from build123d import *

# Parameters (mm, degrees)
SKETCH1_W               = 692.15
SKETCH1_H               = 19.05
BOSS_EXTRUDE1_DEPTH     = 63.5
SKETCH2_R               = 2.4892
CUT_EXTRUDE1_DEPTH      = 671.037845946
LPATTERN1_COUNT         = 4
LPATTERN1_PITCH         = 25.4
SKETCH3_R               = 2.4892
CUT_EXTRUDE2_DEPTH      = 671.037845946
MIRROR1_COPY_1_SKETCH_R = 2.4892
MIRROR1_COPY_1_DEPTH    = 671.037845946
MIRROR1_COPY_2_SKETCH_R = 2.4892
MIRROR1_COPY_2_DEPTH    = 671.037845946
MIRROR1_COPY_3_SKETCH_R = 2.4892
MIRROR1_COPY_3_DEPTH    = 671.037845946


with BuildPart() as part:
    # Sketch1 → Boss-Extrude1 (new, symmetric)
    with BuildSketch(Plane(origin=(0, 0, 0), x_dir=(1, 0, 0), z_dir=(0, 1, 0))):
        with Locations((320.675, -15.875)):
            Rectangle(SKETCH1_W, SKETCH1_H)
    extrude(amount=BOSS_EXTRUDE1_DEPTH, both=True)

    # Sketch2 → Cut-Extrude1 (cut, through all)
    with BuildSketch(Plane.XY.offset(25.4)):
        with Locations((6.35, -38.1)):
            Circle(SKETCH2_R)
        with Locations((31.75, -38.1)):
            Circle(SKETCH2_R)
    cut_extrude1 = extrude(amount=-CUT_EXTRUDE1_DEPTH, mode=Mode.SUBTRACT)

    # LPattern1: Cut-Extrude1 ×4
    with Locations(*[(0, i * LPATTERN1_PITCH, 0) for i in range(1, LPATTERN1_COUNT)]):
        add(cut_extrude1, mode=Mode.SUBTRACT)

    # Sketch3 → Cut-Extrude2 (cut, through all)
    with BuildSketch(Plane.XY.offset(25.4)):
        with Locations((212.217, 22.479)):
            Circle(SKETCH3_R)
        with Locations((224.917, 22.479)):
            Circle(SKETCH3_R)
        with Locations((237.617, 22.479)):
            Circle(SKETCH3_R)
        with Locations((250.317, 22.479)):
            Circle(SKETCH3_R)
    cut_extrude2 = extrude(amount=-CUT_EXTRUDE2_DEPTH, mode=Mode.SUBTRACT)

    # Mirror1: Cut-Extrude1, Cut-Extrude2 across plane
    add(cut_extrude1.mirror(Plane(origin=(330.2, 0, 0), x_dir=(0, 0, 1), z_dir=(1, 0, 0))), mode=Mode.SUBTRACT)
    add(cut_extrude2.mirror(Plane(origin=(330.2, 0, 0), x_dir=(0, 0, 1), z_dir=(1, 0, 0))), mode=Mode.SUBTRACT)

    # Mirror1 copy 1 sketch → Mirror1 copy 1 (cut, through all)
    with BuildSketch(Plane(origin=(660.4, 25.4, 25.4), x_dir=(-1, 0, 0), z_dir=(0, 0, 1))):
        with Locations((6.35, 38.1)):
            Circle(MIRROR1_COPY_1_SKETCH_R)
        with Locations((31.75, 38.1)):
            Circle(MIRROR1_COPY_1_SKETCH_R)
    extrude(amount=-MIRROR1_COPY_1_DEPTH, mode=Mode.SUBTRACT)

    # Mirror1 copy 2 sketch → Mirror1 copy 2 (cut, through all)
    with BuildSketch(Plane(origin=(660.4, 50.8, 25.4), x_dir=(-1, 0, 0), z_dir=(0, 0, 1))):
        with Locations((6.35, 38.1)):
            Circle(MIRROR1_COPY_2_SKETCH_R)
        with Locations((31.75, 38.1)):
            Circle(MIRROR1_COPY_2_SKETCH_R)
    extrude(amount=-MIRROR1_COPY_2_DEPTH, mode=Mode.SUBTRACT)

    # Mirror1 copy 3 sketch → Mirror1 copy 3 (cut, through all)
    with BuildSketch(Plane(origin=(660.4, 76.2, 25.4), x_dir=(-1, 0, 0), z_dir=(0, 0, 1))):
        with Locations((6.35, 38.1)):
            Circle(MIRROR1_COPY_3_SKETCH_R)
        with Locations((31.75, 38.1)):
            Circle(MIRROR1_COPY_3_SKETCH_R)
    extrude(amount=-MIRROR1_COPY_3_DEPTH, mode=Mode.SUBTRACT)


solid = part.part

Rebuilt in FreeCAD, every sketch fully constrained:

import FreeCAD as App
import Part
import Sketcher

V = App.Vector
Q = App.Units.Quantity

doc = App.newDocument("Part")
body = doc.addObject("PartDesign::Body", "Body")

sketch1 = doc.addObject("Sketcher::SketchObject", "Sketch")
body.addObject(sketch1)
sketch1.AttachmentSupport = (doc.XZ_Plane, [""])
sketch1.MapMode = "FlatFace"
sketch1.addGeometry(Part.LineSegment(V(-25, 6, 0), V(-25, 25, 0)), False)
sketch1.addGeometry(Part.LineSegment(V(-25, 25, 0), V(667, 25, 0)), False)
sketch1.addGeometry(Part.LineSegment(V(667, 25, 0), V(667, 6, 0)), False)
sketch1.addGeometry(Part.LineSegment(V(667, 6, 0), V(-25, 6, 0)), False)
sketch1.addConstraint(Sketcher.Constraint("Coincident", 0, 2, 1, 1))
sketch1.addConstraint(Sketcher.Constraint("Coincident", 1, 2, 2, 1))
sketch1.addConstraint(Sketcher.Constraint("Coincident", 2, 2, 3, 1))
sketch1.addConstraint(Sketcher.Constraint("Coincident", 3, 2, 0, 1))
sketch1.addConstraint(Sketcher.Constraint("Vertical", 0))
sketch1.addConstraint(Sketcher.Constraint("Horizontal", 1))
sketch1.addConstraint(Sketcher.Constraint("Vertical", 2))
sketch1.addConstraint(Sketcher.Constraint("Horizontal", 3))
sketch1.addConstraint(Sketcher.Constraint("DistanceX", 0, 2, -1, 1, Q("1 in")))
sketch1.addConstraint(Sketcher.Constraint("DistanceY", -1, 1, 0, 2, Q("1 in")))
sketch1.addConstraint(Sketcher.Constraint("DistanceX", 1, 1, 1, 2, Q("27.25 in")))
sketch1.addConstraint(Sketcher.Constraint("DistanceY", 0, 1, 0, 2, Q("0.75 in")))
pad1 = doc.addObject("PartDesign::Pad", "Pad")
body.addObject(pad1)
pad1.Profile = sketch1
pad1.Length = Q("5 in")
pad1.Midplane = True

sketch2 = doc.addObject("Sketcher::SketchObject", "Sketch001")
body.addObject(sketch2)
sketch2.AttachmentSupport = (doc.XY_Plane, [""])
sketch2.MapMode = "FlatFace"
sketch2.AttachmentOffset = App.Placement(V(0, 0, 1 * 25.4), App.Rotation())
sketch2.addGeometry(Part.Circle(V(6.3, -38.1, 0), V(0, 0, 1), 2.5), False)
sketch2.addGeometry(Part.Circle(V(31.8, -38.1, 0), V(0, 0, 1), 2.5), False)
sketch2.addConstraint(Sketcher.Constraint("Equal", 0, 1))
sketch2.addConstraint(Sketcher.Constraint("Horizontal", 0, 3, 1, 3))
sketch2.addConstraint(Sketcher.Constraint("Diameter", 0, Q("0.196 in")))
sketch2.addConstraint(Sketcher.Constraint("DistanceX", 0, 3, 1, 3, Q("1 in")))
sketch2.addConstraint(Sketcher.Constraint("DistanceY", 0, 3, -1, 1, Q("1.5 in")))
sketch2.addConstraint(Sketcher.Constraint("DistanceX", -1, 1, 0, 3, Q("0.25 in")))
pocket1 = doc.addObject("PartDesign::Pocket", "Pocket")
body.addObject(pocket1)
pocket1.Profile = sketch2
pocket1.Type = "ThroughAll"
doc.recompute()

linearpattern = doc.addObject("PartDesign::LinearPattern", "LinearPattern")
body.addObject(linearpattern)
linearpattern.Originals = [pocket1]
linearpattern.Direction = (doc.Y_Axis, [""])
linearpattern.Mode = "offset"
linearpattern.Offset = Q("1 in")
linearpattern.Occurrences = 4
body.Tip = linearpattern

sketch3 = doc.addObject("Sketcher::SketchObject", "Sketch002")
body.addObject(sketch3)
sketch3.AttachmentSupport = (doc.XY_Plane, [""])
sketch3.MapMode = "FlatFace"
sketch3.AttachmentOffset = App.Placement(V(0, 0, 1 * 25.4), App.Rotation())
sketch3.addGeometry(Part.Circle(V(212.2, 22.5, 0), V(0, 0, 1), 2.5), False)
sketch3.addGeometry(Part.Circle(V(224.9, 22.5, 0), V(0, 0, 1), 2.5), False)
sketch3.addGeometry(Part.Circle(V(237.6, 22.5, 0), V(0, 0, 1), 2.5), False)
sketch3.addGeometry(Part.Circle(V(250.3, 22.5, 0), V(0, 0, 1), 2.5), False)
sketch3.addConstraint(Sketcher.Constraint("Equal", 0, 1))
sketch3.addConstraint(Sketcher.Constraint("Equal", 1, 2))
sketch3.addConstraint(Sketcher.Constraint("Equal", 2, 3))
sketch3.addConstraint(Sketcher.Constraint("Horizontal", 0, 3, 1, 3))
sketch3.addConstraint(Sketcher.Constraint("Horizontal", 1, 3, 2, 3))
sketch3.addConstraint(Sketcher.Constraint("Horizontal", 2, 3, 3, 3))
sketch3.addConstraint(Sketcher.Constraint("Diameter", 0, Q("0.196 in")))
sketch3.addConstraint(Sketcher.Constraint("DistanceX", 0, 3, 2, 3, Q("1 in")))
sketch3.addConstraint(Sketcher.Constraint("DistanceX", 1, 3, 3, 3, Q("1 in")))
sketch3.addConstraint(Sketcher.Constraint("DistanceX", 0, 3, 1, 3, Q("0.5 in")))
sketch3.addConstraint(Sketcher.Constraint("DistanceX", -1, 1, 0, 3, Q("8.355 in")))
sketch3.addConstraint(Sketcher.Constraint("DistanceY", -1, 1, 0, 3, Q("0.885 in")))
pocket2 = doc.addObject("PartDesign::Pocket", "Pocket001")
body.addObject(pocket2)
pocket2.Profile = sketch3
pocket2.Type = "ThroughAll"
doc.recompute()

datumplane = doc.addObject("PartDesign::Plane", "DatumPlane")
body.addObject(datumplane)
datumplane.AttachmentSupport = (doc.YZ_Plane, [""])
datumplane.MapMode = "FlatFace"
datumplane.AttachmentOffset = App.Placement(V(0, 0, 13 * 25.4), App.Rotation())
mirrored = doc.addObject("PartDesign::Mirrored", "Mirrored")
body.addObject(mirrored)
mirrored.Originals = [pocket1, pocket2]
mirrored.MirrorPlane = (datumplane, [""])
body.Tip = mirrored

sketch4 = doc.addObject("Sketcher::SketchObject", "Sketch003")
body.addObject(sketch4)
sketch4.AttachmentSupport = (doc.XY_Plane, [""])
sketch4.MapMode = "FlatFace"
sketch4.AttachmentOffset = App.Placement(V(0, 0, 1 * 25.4), App.Rotation())
sketch4.addGeometry(Part.Circle(V(654, -12.7, 0), V(0, 0, 1), 2.5), False)
sketch4.addGeometry(Part.Circle(V(628.6, -12.7, 0), V(0, 0, 1), 2.5), False)
sketch4.addConstraint(Sketcher.Constraint("Equal", 0, 1))
sketch4.addConstraint(Sketcher.Constraint("Horizontal", 0, 3, 1, 3))
sketch4.addConstraint(Sketcher.Constraint("Diameter", 0, Q("0.196 in")))
sketch4.addConstraint(Sketcher.Constraint("DistanceX", 1, 3, 0, 3, Q("1 in")))
sketch4.addConstraint(Sketcher.Constraint("DistanceY", 0, 3, -1, 1, Q("0.5 in")))
sketch4.addConstraint(Sketcher.Constraint("DistanceX", -1, 1, 0, 3, Q("25.75 in")))
pocket3 = doc.addObject("PartDesign::Pocket", "Pocket002")
body.addObject(pocket3)
pocket3.Profile = sketch4
pocket3.Type = "ThroughAll"

sketch5 = doc.addObject("Sketcher::SketchObject", "Sketch004")
body.addObject(sketch5)
sketch5.AttachmentSupport = (doc.XY_Plane, [""])
sketch5.MapMode = "FlatFace"
sketch5.AttachmentOffset = App.Placement(V(0, 0, 1 * 25.4), App.Rotation())
sketch5.addGeometry(Part.Circle(V(654, 12.7, 0), V(0, 0, 1), 2.5), False)
sketch5.addGeometry(Part.Circle(V(628.6, 12.7, 0), V(0, 0, 1), 2.5), False)
sketch5.addConstraint(Sketcher.Constraint("Equal", 0, 1))
sketch5.addConstraint(Sketcher.Constraint("Horizontal", 0, 3, 1, 3))
sketch5.addConstraint(Sketcher.Constraint("Diameter", 0, Q("0.196 in")))
sketch5.addConstraint(Sketcher.Constraint("DistanceX", 1, 3, 0, 3, Q("1 in")))
sketch5.addConstraint(Sketcher.Constraint("DistanceY", -1, 1, 0, 3, Q("0.5 in")))
sketch5.addConstraint(Sketcher.Constraint("DistanceX", -1, 1, 0, 3, Q("25.75 in")))
pocket4 = doc.addObject("PartDesign::Pocket", "Pocket003")
body.addObject(pocket4)
pocket4.Profile = sketch5
pocket4.Type = "ThroughAll"

sketch6 = doc.addObject("Sketcher::SketchObject", "Sketch005")
body.addObject(sketch6)
sketch6.AttachmentSupport = (doc.XY_Plane, [""])
sketch6.MapMode = "FlatFace"
sketch6.AttachmentOffset = App.Placement(V(0, 0, 1 * 25.4), App.Rotation())
sketch6.addGeometry(Part.Circle(V(654, 38.1, 0), V(0, 0, 1), 2.5), False)
sketch6.addGeometry(Part.Circle(V(628.6, 38.1, 0), V(0, 0, 1), 2.5), False)
sketch6.addConstraint(Sketcher.Constraint("Equal", 0, 1))
sketch6.addConstraint(Sketcher.Constraint("Horizontal", 0, 3, 1, 3))
sketch6.addConstraint(Sketcher.Constraint("Diameter", 0, Q("0.196 in")))
sketch6.addConstraint(Sketcher.Constraint("DistanceX", 1, 3, 0, 3, Q("1 in")))
sketch6.addConstraint(Sketcher.Constraint("DistanceY", -1, 1, 0, 3, Q("1.5 in")))
sketch6.addConstraint(Sketcher.Constraint("DistanceX", -1, 1, 0, 3, Q("25.75 in")))
pocket5 = doc.addObject("PartDesign::Pocket", "Pocket004")
body.addObject(pocket5)
pocket5.Profile = sketch6
pocket5.Type = "ThroughAll"

doc.recompute()
